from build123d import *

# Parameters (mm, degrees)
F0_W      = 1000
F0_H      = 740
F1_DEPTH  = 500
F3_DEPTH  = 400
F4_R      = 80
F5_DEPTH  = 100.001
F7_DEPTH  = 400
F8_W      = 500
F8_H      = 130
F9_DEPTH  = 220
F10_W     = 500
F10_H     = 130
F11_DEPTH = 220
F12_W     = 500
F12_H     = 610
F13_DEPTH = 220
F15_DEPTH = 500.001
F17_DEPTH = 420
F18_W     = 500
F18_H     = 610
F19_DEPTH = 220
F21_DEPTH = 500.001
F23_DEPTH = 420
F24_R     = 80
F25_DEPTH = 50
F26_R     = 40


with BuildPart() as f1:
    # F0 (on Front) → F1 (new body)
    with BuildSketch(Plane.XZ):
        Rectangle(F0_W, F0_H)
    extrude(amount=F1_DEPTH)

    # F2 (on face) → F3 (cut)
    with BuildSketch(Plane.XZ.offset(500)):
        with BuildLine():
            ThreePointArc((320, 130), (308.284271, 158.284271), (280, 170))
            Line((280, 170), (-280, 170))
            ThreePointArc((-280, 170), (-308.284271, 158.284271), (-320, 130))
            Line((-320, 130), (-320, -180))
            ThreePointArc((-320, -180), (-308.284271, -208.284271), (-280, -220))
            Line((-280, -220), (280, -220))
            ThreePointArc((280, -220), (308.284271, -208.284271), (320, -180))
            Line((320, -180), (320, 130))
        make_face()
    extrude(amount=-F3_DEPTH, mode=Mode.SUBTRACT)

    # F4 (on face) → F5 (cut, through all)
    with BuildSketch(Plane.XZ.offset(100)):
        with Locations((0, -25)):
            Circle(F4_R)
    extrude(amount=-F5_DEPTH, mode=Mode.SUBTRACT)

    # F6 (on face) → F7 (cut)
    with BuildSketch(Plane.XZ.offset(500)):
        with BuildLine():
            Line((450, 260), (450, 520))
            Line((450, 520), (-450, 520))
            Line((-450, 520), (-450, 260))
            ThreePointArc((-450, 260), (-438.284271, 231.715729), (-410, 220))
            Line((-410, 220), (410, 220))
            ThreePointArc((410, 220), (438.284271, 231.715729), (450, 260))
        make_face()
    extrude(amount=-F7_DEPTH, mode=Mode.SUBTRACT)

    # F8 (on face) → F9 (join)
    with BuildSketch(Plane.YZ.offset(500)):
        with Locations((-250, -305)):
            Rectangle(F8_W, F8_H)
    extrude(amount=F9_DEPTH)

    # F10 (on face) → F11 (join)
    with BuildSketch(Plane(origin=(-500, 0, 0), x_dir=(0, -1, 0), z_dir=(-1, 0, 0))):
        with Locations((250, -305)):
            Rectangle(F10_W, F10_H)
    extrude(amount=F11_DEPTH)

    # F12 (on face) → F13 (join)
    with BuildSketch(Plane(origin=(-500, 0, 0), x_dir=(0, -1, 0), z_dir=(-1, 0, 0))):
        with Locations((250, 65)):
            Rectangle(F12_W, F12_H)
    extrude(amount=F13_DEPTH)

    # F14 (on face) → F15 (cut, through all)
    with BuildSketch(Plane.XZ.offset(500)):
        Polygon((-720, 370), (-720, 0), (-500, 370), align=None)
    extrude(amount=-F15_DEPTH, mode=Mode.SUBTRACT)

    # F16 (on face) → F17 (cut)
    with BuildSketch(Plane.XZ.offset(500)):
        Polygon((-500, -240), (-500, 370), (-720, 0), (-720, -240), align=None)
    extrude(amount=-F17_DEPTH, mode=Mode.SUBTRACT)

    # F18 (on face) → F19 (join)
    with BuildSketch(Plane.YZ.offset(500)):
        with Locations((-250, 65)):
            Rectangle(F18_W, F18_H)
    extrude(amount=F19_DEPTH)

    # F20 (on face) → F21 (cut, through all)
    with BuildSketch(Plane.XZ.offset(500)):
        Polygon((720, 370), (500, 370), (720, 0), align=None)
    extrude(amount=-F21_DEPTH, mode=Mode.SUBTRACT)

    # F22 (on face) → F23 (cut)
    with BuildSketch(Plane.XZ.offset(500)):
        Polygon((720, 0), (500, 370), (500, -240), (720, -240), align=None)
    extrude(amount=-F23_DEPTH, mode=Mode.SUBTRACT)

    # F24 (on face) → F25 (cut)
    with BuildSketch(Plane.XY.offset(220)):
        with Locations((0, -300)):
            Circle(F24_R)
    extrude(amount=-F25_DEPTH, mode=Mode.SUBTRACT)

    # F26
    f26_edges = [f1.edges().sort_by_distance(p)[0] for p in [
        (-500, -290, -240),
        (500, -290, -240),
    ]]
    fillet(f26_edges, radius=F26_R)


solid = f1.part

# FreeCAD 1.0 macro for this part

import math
import FreeCAD as App
import Part
import Sketcher


def edges_at(feature, points):
    """Names of the edges that pass closest to the given points."""
    edges = feature.Shape.Edges
    near = lambda p: min(range(len(edges)), key=lambda i: edges[i].distToShape(Part.Vertex(*p))[0])
    return sorted({f"Edge{near(p) + 1}" for p in points})

doc = App.newDocument("Part")
body = doc.addObject("PartDesign::Body", "Body")

# Sketch on XZ plane
sketch1 = doc.addObject("Sketcher::SketchObject", "Sketch")
body.addObject(sketch1)
sketch1.AttachmentSupport = (doc.XZ_Plane, [""])
sketch1.MapMode = "FlatFace"
sketch1.addGeometry(Part.LineSegment(App.Vector(-500, 370, 0), App.Vector(-500, -370, 0)), False)
sketch1.addGeometry(Part.LineSegment(App.Vector(-500, -370, 0), App.Vector(500, -370, 0)), False)
sketch1.addGeometry(Part.LineSegment(App.Vector(500, -370, 0), App.Vector(500, 370, 0)), False)
sketch1.addGeometry(Part.LineSegment(App.Vector(500, 370, 0), App.Vector(-500, 370, 0)), False)
sketch1.addConstraint(Sketcher.Constraint("Coincident", 0, 2, 1, 1))
sketch1.addConstraint(Sketcher.Constraint("Coincident", 1, 2, 2, 1))
sketch1.addConstraint(Sketcher.Constraint("Coincident", 2, 2, 3, 1))
sketch1.addConstraint(Sketcher.Constraint("Coincident", 3, 2, 0, 1))
sketch1.addConstraint(Sketcher.Constraint("Vertical", 0))
sketch1.addConstraint(Sketcher.Constraint("Horizontal", 1))
sketch1.addConstraint(Sketcher.Constraint("Vertical", 2))
sketch1.addConstraint(Sketcher.Constraint("Horizontal", 3))
sketch1.addConstraint(Sketcher.Constraint("Symmetric", 0, 2, 2, 2, -1, 1))
sketch1.addConstraint(Sketcher.Constraint("DistanceX", 1, 1, 1, 2, 1000.0))
sketch1.addConstraint(Sketcher.Constraint("DistanceY", 0, 2, 0, 1, 740.0))
pad1 = doc.addObject("PartDesign::Pad", "Pad")
body.addObject(pad1)
pad1.Profile = sketch1
pad1.Length = 500

# Sketch on XZ plane
sketch2 = doc.addObject("Sketcher::SketchObject", "Sketch001")
body.addObject(sketch2)
sketch2.AttachmentSupport = (doc.XZ_Plane, [""])
sketch2.MapMode = "FlatFace"
sketch2.AttachmentOffset = App.Placement(App.Vector(0, 0, 500), App.Rotation())
sketch2.addGeometry(Part.ArcOfCircle(Part.Circle(App.Vector(279.999999, 129.999999, 0), App.Vector(0, 0, 1), 40.000001), math.radians(0.000001), math.radians(89.999999)), False)
sketch2.addGeometry(Part.LineSegment(App.Vector(280, 170, 0), App.Vector(-280, 170, 0)), False)
sketch2.addGeometry(Part.ArcOfCircle(Part.Circle(App.Vector(-279.999999, 129.999999, 0), App.Vector(0, 0, 1), 40.000001), math.radians(90.000001), math.radians(179.999999)), False)
sketch2.addGeometry(Part.LineSegment(App.Vector(-320, 130, 0), App.Vector(-320, -180, 0)), False)
sketch2.addGeometry(Part.ArcOfCircle(Part.Circle(App.Vector(-279.999999, -179.999999, 0), App.Vector(0, 0, 1), 40.000001), math.radians(-179.999999), math.radians(-90.000001)), False)
sketch2.addGeometry(Part.LineSegment(App.Vector(-280, -220, 0), App.Vector(280, -220, 0)), False)
sketch2.addGeometry(Part.ArcOfCircle(Part.Circle(App.Vector(279.999999, -179.999999, 0), App.Vector(0, 0, 1), 40.000001), math.radians(-89.999999), math.radians(-0.000001)), False)
sketch2.addGeometry(Part.LineSegment(App.Vector(320, -180, 0), App.Vector(320, 130, 0)), False)
sketch2.addConstraint(Sketcher.Constraint("Tangent", 0, 2, 1, 1))
sketch2.addConstraint(Sketcher.Constraint("Tangent", 1, 2, 2, 1))
sketch2.addConstraint(Sketcher.Constraint("Tangent", 2, 2, 3, 1))
sketch2.addConstraint(Sketcher.Constraint("Tangent", 3, 2, 4, 1))
sketch2.addConstraint(Sketcher.Constraint("Tangent", 4, 2, 5, 1))
sketch2.addConstraint(Sketcher.Constraint("Tangent", 5, 2, 6, 1))
sketch2.addConstraint(Sketcher.Constraint("Tangent", 6, 2, 7, 1))
sketch2.addConstraint(Sketcher.Constraint("Tangent", 7, 2, 0, 1))
sketch2.addConstraint(Sketcher.Constraint("Horizontal", 1))
sketch2.addConstraint(Sketcher.Constraint("Vertical", 3))
sketch2.addConstraint(Sketcher.Constraint("Horizontal", 5))
sketch2.addConstraint(Sketcher.Constraint("Vertical", 7))
sketch2.addConstraint(Sketcher.Constraint("Equal", 0, 2))
sketch2.addConstraint(Sketcher.Constraint("Equal", 2, 4))
sketch2.addConstraint(Sketcher.Constraint("Equal", 4, 6))
sketch2.addConstraint(Sketcher.Constraint("Radius", 0, 40.000001))
sketch2.addConstraint(Sketcher.Constraint("DistanceX", 1, 2, 1, 1, 560.0))
sketch2.addConstraint(Sketcher.Constraint("DistanceY", 3, 2, 3, 1, 310.0))
sketch2.addConstraint(Sketcher.Constraint("DistanceX", -1, 1, 0, 3, 279.999999))
sketch2.addConstraint(Sketcher.Constraint("DistanceY", -1, 1, 0, 3, 129.999999))
pocket1 = doc.addObject("PartDesign::Pocket", "Pocket")
body.addObject(pocket1)
pocket1.Profile = sketch2
pocket1.Length = 400

# Sketch on XZ plane
sketch3 = doc.addObject("Sketcher::SketchObject", "Sketch002")
body.addObject(sketch3)
sketch3.AttachmentSupport = (doc.XZ_Plane, [""])
sketch3.MapMode = "FlatFace"
sketch3.AttachmentOffset = App.Placement(App.Vector(0, 0, 100), App.Rotation())
sketch3.addGeometry(Part.Circle(App.Vector(0, -25, 0), App.Vector(0, 0, 1), 80), False)
sketch3.addConstraint(Sketcher.Constraint("PointOnObject", 0, 3, -2))
sketch3.addConstraint(Sketcher.Constraint("Diameter", 0, 160.0))
sketch3.addConstraint(Sketcher.Constraint("DistanceY", 0, 3, -1, 1, 25.0))
pocket2 = doc.addObject("PartDesign::Pocket", "Pocket001")
body.addObject(pocket2)
pocket2.Profile = sketch3
pocket2.Type = "ThroughAll"

# Sketch on XZ plane
sketch4 = doc.addObject("Sketcher::SketchObject", "Sketch003")
body.addObject(sketch4)
sketch4.AttachmentSupport = (doc.XZ_Plane, [""])
sketch4.MapMode = "FlatFace"
sketch4.AttachmentOffset = App.Placement(App.Vector(0, 0, 500), App.Rotation())
sketch4.addGeometry(Part.LineSegment(App.Vector(450, 260, 0), App.Vector(450, 520, 0)), False)
sketch4.addGeometry(Part.LineSegment(App.Vector(450, 520, 0), App.Vector(-450, 520, 0)), False)
sketch4.addGeometry(Part.LineSegment(App.Vector(-450, 520, 0), App.Vector(-450, 260, 0)), False)
sketch4.addGeometry(Part.ArcOfCircle(Part.Circle(App.Vector(-409.999999, 260.000001, 0), App.Vector(0, 0, 1), 40.000001), math.radians(-179.999999), math.radians(-90.000001)), False)
sketch4.addGeometry(Part.LineSegment(App.Vector(-410, 220, 0), App.Vector(410, 220, 0)), False)
sketch4.addGeometry(Part.ArcOfCircle(Part.Circle(App.Vector(409.999999, 260.000001, 0), App.Vector(0, 0, 1), 40.000001), math.radians(-89.999999), math.radians(-0.000001)), False)
sketch4.addConstraint(Sketcher.Constraint("Coincident", 0, 2, 1, 1))
sketch4.addConstraint(Sketcher.Constraint("Coincident", 1, 2, 2, 1))
sketch4.addConstraint(Sketcher.Constraint("Tangent", 2, 2, 3, 1))
sketch4.addConstraint(Sketcher.Constraint("Tangent", 3, 2, 4, 1))
sketch4.addConstraint(Sketcher.Constraint("Tangent", 4, 2, 5, 1))
sketch4.addConstraint(Sketcher.Constraint("Tangent", 5, 2, 0, 1))
sketch4.addConstraint(Sketcher.Constraint("Vertical", 0))
sketch4.addConstraint(Sketcher.Constraint("Horizontal", 1))
sketch4.addConstraint(Sketcher.Constraint("Vertical", 2))
sketch4.addConstraint(Sketcher.Constraint("Horizontal", 4))
sketch4.addConstraint(Sketcher.Constraint("Equal", 3, 5))
sketch4.addConstraint(Sketcher.Constraint("Radius", 3, 40.000001))
sketch4.addConstraint(Sketcher.Constraint("DistanceX", 1, 2, 1, 1, 900.0))
sketch4.addConstraint(Sketcher.Constraint("DistanceY", 0, 1, 0, 2, 260.0))
sketch4.addConstraint(Sketcher.Constraint("DistanceX", 3, 3, -1, 1, 409.999999))
sketch4.addConstraint(Sketcher.Constraint("DistanceY", -1, 1, 3, 3, 260.000001))
pocket3 = doc.addObject("PartDesign::Pocket", "Pocket002")
body.addObject(pocket3)
pocket3.Profile = sketch4
pocket3.Length = 400

# Sketch on YZ plane
sketch5 = doc.addObject("Sketcher::SketchObject", "Sketch004")
body.addObject(sketch5)
sketch5.AttachmentSupport = (doc.YZ_Plane, [""])
sketch5.MapMode = "FlatFace"
sketch5.AttachmentOffset = App.Placement(App.Vector(0, 0, 500), App.Rotation())
sketch5.addGeometry(Part.LineSegment(App.Vector(-500, -240, 0), App.Vector(-500, -370, 0)), False)
sketch5.addGeometry(Part.LineSegment(App.Vector(-500, -370, 0), App.Vector(0, -370, 0)), False)
sketch5.addGeometry(Part.LineSegment(App.Vector(0, -370, 0), App.Vector(0, -240, 0)), False)
sketch5.addGeometry(Part.LineSegment(App.Vector(0, -240, 0), App.Vector(-500, -240, 0)), False)
sketch5.addConstraint(Sketcher.Constraint("Coincident", 0, 2, 1, 1))
sketch5.addConstraint(Sketcher.Constraint("Coincident", 1, 2, 2, 1))
sketch5.addConstraint(Sketcher.Constraint("Coincident", 2, 2, 3, 1))
sketch5.addConstraint(Sketcher.Constraint("Coincident", 3, 2, 0, 1))
sketch5.addConstraint(Sketcher.Constraint("Vertical", 0))
sketch5.addConstraint(Sketcher.Constraint("Horizontal", 1))
sketch5.addConstraint(Sketcher.Constraint("Vertical", 2))
sketch5.addConstraint(Sketcher.Constraint("Horizontal", 3))
sketch5.addConstraint(Sketcher.Constraint("PointOnObject", 1, 2, -2))
sketch5.addConstraint(Sketcher.Constraint("DistanceX", 1, 1, 1, 2, 500.0))
sketch5.addConstraint(Sketcher.Constraint("DistanceY", 0, 2, 0, 1, 130.0))
sketch5.addConstraint(Sketcher.Constraint("DistanceY", 0, 2, -1, 1, 370.0))
pad2 = doc.addObject("PartDesign::Pad", "Pad001")
body.addObject(pad2)
pad2.Profile = sketch5
pad2.Length = 220

# Sketch on YZ plane
sketch6 = doc.addObject("Sketcher::SketchObject", "Sketch005")
body.addObject(sketch6)
sketch6.AttachmentSupport = (doc.YZ_Plane, [""])
sketch6.MapMode = "FlatFace"
sketch6.AttachmentOffset = App.Placement(App.Vector(0, 0, -500), App.Rotation())
sketch6.addGeometry(Part.LineSegment(App.Vector(0, -240, 0), App.Vector(0, -370, 0)), False)
sketch6.addGeometry(Part.LineSegment(App.Vector(0, -370, 0), App.Vector(-500, -370, 0)), False)
sketch6.addGeometry(Part.LineSegment(App.Vector(-500, -370, 0), App.Vector(-500, -240, 0)), False)
sketch6.addGeometry(Part.LineSegment(App.Vector(-500, -240, 0), App.Vector(0, -240, 0)), False)
sketch6.addConstraint(Sketcher.Constraint("Coincident", 0, 2, 1, 1))
sketch6.addConstraint(Sketcher.Constraint("Coincident", 1, 2, 2, 1))
sketch6.addConstraint(Sketcher.Constraint("Coincident", 2, 2, 3, 1))
sketch6.addConstraint(Sketcher.Constraint("Coincident", 3, 2, 0, 1))
sketch6.addConstraint(Sketcher.Constraint("Vertical", 0))
sketch6.addConstraint(Sketcher.Constraint("Horizontal", 1))
sketch6.addConstraint(Sketcher.Constraint("Vertical", 2))
sketch6.addConstraint(Sketcher.Constraint("Horizontal", 3))
sketch6.addConstraint(Sketcher.Constraint("PointOnObject", 0, 2, -2))
sketch6.addConstraint(Sketcher.Constraint("DistanceX", 1, 2, 1, 1, 500.0))
sketch6.addConstraint(Sketcher.Constraint("DistanceY", 0, 2, 0, 1, 130.0))
sketch6.addConstraint(Sketcher.Constraint("DistanceY", 0, 2, -1, 1, 370.0))
pad3 = doc.addObject("PartDesign::Pad", "Pad002")
body.addObject(pad3)
pad3.Profile = sketch6
pad3.Length = 220
pad3.Reversed = True

# Sketch on YZ plane
sketch7 = doc.addObject("Sketcher::SketchObject", "Sketch006")
body.addObject(sketch7)
sketch7.AttachmentSupport = (doc.YZ_Plane, [""])
sketch7.MapMode = "FlatFace"
sketch7.AttachmentOffset = App.Placement(App.Vector(0, 0, -500), App.Rotation())
sketch7.addGeometry(Part.LineSegment(App.Vector(0, 370, 0), App.Vector(0, -240, 0)), False)
sketch7.addGeometry(Part.LineSegment(App.Vector(0, -240, 0), App.Vector(-500, -240, 0)), False)
sketch7.addGeometry(Part.LineSegment(App.Vector(-500, -240, 0), App.Vector(-500, 370, 0)), False)
sketch7.addGeometry(Part.LineSegment(App.Vector(-500, 370, 0), App.Vector(0, 370, 0)), False)
sketch7.addConstraint(Sketcher.Constraint("Coincident", 0, 2, 1, 1))
sketch7.addConstraint(Sketcher.Constraint("Coincident", 1, 2, 2, 1))
sketch7.addConstraint(Sketcher.Constraint("Coincident", 2, 2, 3, 1))
sketch7.addConstraint(Sketcher.Constraint("Coincident", 3, 2, 0, 1))
sketch7.addConstraint(Sketcher.Constraint("Vertical", 0))
sketch7.addConstraint(Sketcher.Constraint("Horizontal", 1))
sketch7.addConstraint(Sketcher.Constraint("Vertical", 2))
sketch7.addConstraint(Sketcher.Constraint("Horizontal", 3))
sketch7.addConstraint(Sketcher.Constraint("PointOnObject", 0, 2, -2))
sketch7.addConstraint(Sketcher.Constraint("DistanceX", 1, 2, 1, 1, 500.0))
sketch7.addConstraint(Sketcher.Constraint("DistanceY", 0, 2, 0, 1, 610.0))
sketch7.addConstraint(Sketcher.Constraint("DistanceY", 0, 2, -1, 1, 240.0))
pad4 = doc.addObject("PartDesign::Pad", "Pad003")
body.addObject(pad4)
pad4.Profile = sketch7
pad4.Length = 220
pad4.Reversed = True

# Sketch on XZ plane
sketch8 = doc.addObject("Sketcher::SketchObject", "Sketch007")
body.addObject(sketch8)
sketch8.AttachmentSupport = (doc.XZ_Plane, [""])
sketch8.MapMode = "FlatFace"
sketch8.AttachmentOffset = App.Placement(App.Vector(0, 0, 500), App.Rotation())
sketch8.addGeometry(Part.LineSegment(App.Vector(-720, 370, 0), App.Vector(-720, 0, 0)), False)
sketch8.addGeometry(Part.LineSegment(App.Vector(-720, 0, 0), App.Vector(-500, 370, 0)), False)
sketch8.addGeometry(Part.LineSegment(App.Vector(-500, 370, 0), App.Vector(-720, 370, 0)), False)
sketch8.addConstraint(Sketcher.Constraint("Coincident", 0, 2, 1, 1))
sketch8.addConstraint(Sketcher.Constraint("Coincident", 1, 2, 2, 1))
sketch8.addConstraint(Sketcher.Constraint("Coincident", 2, 2, 0, 1))
sketch8.addConstraint(Sketcher.Constraint("Vertical", 0))
sketch8.addConstraint(Sketcher.Constraint("Horizontal", 2))
sketch8.addConstraint(Sketcher.Constraint("PointOnObject", 0, 2, -1))
sketch8.addConstraint(Sketcher.Constraint("DistanceX", 2, 2, 2, 1, 220.0))
sketch8.addConstraint(Sketcher.Constraint("DistanceY", 0, 2, 0, 1, 370.0))
sketch8.addConstraint(Sketcher.Constraint("DistanceX", 0, 2, -1, 1, 720.0))
pocket4 = doc.addObject("PartDesign::Pocket", "Pocket003")
body.addObject(pocket4)
pocket4.Profile = sketch8
pocket4.Type = "ThroughAll"

# Sketch on XZ plane
sketch9 = doc.addObject("Sketcher::SketchObject", "Sketch008")
body.addObject(sketch9)
sketch9.AttachmentSupport = (doc.XZ_Plane, [""])
sketch9.MapMode = "FlatFace"
sketch9.AttachmentOffset = App.Placement(App.Vector(0, 0, 500), App.Rotation())
sketch9.addGeometry(Part.LineSegment(App.Vector(-500, -240, 0), App.Vector(-500, 370, 0)), False)
sketch9.addGeometry(Part.LineSegment(App.Vector(-500, 370, 0), App.Vector(-720, 0, 0)), False)
sketch9.addGeometry(Part.LineSegment(App.Vector(-720, 0, 0), App.Vector(-720, -240, 0)), False)
sketch9.addGeometry(Part.LineSegment(App.Vector(-720, -240, 0), App.Vector(-500, -240, 0)), False)
sketch9.addConstraint(Sketcher.Constraint("Coincident", 0, 2, 1, 1))
sketch9.addConstraint(Sketcher.Constraint("Coincident", 1, 2, 2, 1))
sketch9.addConstraint(Sketcher.Constraint("Coincident", 2, 2, 3, 1))
sketch9.addConstraint(Sketcher.Constraint("Coincident", 3, 2, 0, 1))
sketch9.addConstraint(Sketcher.Constraint("Vertical", 0))
sketch9.addConstraint(Sketcher.Constraint("Vertical", 2))
sketch9.addConstraint(Sketcher.Constraint("Horizontal", 3))
sketch9.addConstraint(Sketcher.Constraint("PointOnObject", 1, 2, -1))
sketch9.addConstraint(Sketcher.Constraint("DistanceX", 3, 1, 3, 2, 220.0))
sketch9.addConstraint(Sketcher.Constraint("DistanceY", 0, 1, 0, 2, 610.0))
sketch9.addConstraint(Sketcher.Constraint("DistanceY", 2, 2, 2, 1, 240.0))
sketch9.addConstraint(Sketcher.Constraint("DistanceX", 0, 2, -1, 1, 500.0))
pocket5 = doc.addObject("PartDesign::Pocket", "Pocket004")
body.addObject(pocket5)
pocket5.Profile = sketch9
pocket5.Length = 420

# Sketch on YZ plane
sketch10 = doc.addObject("Sketcher::SketchObject", "Sketch009")
body.addObject(sketch10)
sketch10.AttachmentSupport = (doc.YZ_Plane, [""])
sketch10.MapMode = "FlatFace"
sketch10.AttachmentOffset = App.Placement(App.Vector(0, 0, 500), App.Rotation())
sketch10.addGeometry(Part.LineSegment(App.Vector(-500, 370, 0), App.Vector(-500, -240, 0)), False)
sketch10.addGeometry(Part.LineSegment(App.Vector(-500, -240, 0), App.Vector(0, -240, 0)), False)
sketch10.addGeometry(Part.LineSegment(App.Vector(0, -240, 0), App.Vector(0, 370, 0)), False)
sketch10.addGeometry(Part.LineSegment(App.Vector(0, 370, 0), App.Vector(-500, 370, 0)), False)
sketch10.addConstraint(Sketcher.Constraint("Coincident", 0, 2, 1, 1))
sketch10.addConstraint(Sketcher.Constraint("Coincident", 1, 2, 2, 1))
sketch10.addConstraint(Sketcher.Constraint("Coincident", 2, 2, 3, 1))
sketch10.addConstraint(Sketcher.Constraint("Coincident", 3, 2, 0, 1))
sketch10.addConstraint(Sketcher.Constraint("Vertical", 0))
sketch10.addConstraint(Sketcher.Constraint("Horizontal", 1))
sketch10.addConstraint(Sketcher.Constraint("Vertical", 2))
sketch10.addConstraint(Sketcher.Constraint("Horizontal", 3))
sketch10.addConstraint(Sketcher.Constraint("PointOnObject", 1, 2, -2))
sketch10.addConstraint(Sketcher.Constraint("DistanceX", 1, 1, 1, 2, 500.0))
sketch10.addConstraint(Sketcher.Constraint("DistanceY", 0, 2, 0, 1, 610.0))
sketch10.addConstraint(Sketcher.Constraint("DistanceY", 0, 2, -1, 1, 240.0))
pad5 = doc.addObject("PartDesign::Pad", "Pad004")
body.addObject(pad5)
pad5.Profile = sketch10
pad5.Length = 220

# Sketch on XZ plane
sketch11 = doc.addObject("Sketcher::SketchObject", "Sketch010")
body.addObject(sketch11)
sketch11.AttachmentSupport = (doc.XZ_Plane, [""])
sketch11.MapMode = "FlatFace"
sketch11.AttachmentOffset = App.Placement(App.Vector(0, 0, 500), App.Rotation())
sketch11.addGeometry(Part.LineSegment(App.Vector(720, 370, 0), App.Vector(500, 370, 0)), False)
sketch11.addGeometry(Part.LineSegment(App.Vector(500, 370, 0), App.Vector(720, 0, 0)), False)
sketch11.addGeometry(Part.LineSegment(App.Vector(720, 0, 0), App.Vector(720, 370, 0)), False)
sketch11.addConstraint(Sketcher.Constraint("Coincident", 0, 2, 1, 1))
sketch11.addConstraint(Sketcher.Constraint("Coincident", 1, 2, 2, 1))
sketch11.addConstraint(Sketcher.Constraint("Coincident", 2, 2, 0, 1))
sketch11.addConstraint(Sketcher.Constraint("Horizontal", 0))
sketch11.addConstraint(Sketcher.Constraint("Vertical", 2))
sketch11.addConstraint(Sketcher.Constraint("PointOnObject", 1, 2, -1))
sketch11.addConstraint(Sketcher.Constraint("DistanceX", 0, 2, 0, 1, 220.0))
sketch11.addConstraint(Sketcher.Constraint("DistanceY", 2, 1, 2, 2, 370.0))
sketch11.addConstraint(Sketcher.Constraint("DistanceX", -1, 1, 0, 2, 500.0))
pocket6 = doc.addObject("PartDesign::Pocket", "Pocket005")
body.addObject(pocket6)
pocket6.Profile = sketch11
pocket6.Type = "ThroughAll"

# Sketch on XZ plane
sketch12 = doc.addObject("Sketcher::SketchObject", "Sketch011")
body.addObject(sketch12)
sketch12.AttachmentSupport = (doc.XZ_Plane, [""])
sketch12.MapMode = "FlatFace"
sketch12.AttachmentOffset = App.Placement(App.Vector(0, 0, 500), App.Rotation())
sketch12.addGeometry(Part.LineSegment(App.Vector(720, 0, 0), App.Vector(500, 370, 0)), False)
sketch12.addGeometry(Part.LineSegment(App.Vector(500, 370, 0), App.Vector(500, -240, 0)), False)
sketch12.addGeometry(Part.LineSegment(App.Vector(500, -240, 0), App.Vector(720, -240, 0)), False)
sketch12.addGeometry(Part.LineSegment(App.Vector(720, -240, 0), App.Vector(720, 0, 0)), False)
sketch12.addConstraint(Sketcher.Constraint("Coincident", 0, 2, 1, 1))
sketch12.addConstraint(Sketcher.Constraint("Coincident", 1, 2, 2, 1))
sketch12.addConstraint(Sketcher.Constraint("Coincident", 2, 2, 3, 1))
sketch12.addConstraint(Sketcher.Constraint("Coincident", 3, 2, 0, 1))
sketch12.addConstraint(Sketcher.Constraint("Vertical", 1))
sketch12.addConstraint(Sketcher.Constraint("Horizontal", 2))
sketch12.addConstraint(Sketcher.Constraint("Vertical", 3))
sketch12.addConstraint(Sketcher.Constraint("PointOnObject", 3, 2, -1))
sketch12.addConstraint(Sketcher.Constraint("DistanceX", 2, 1, 2, 2, 220.0))
sketch12.addConstraint(Sketcher.Constraint("DistanceY", 1, 2, 1, 1, 610.0))
sketch12.addConstraint(Sketcher.Constraint("DistanceY", 3, 1, 3, 2, 240.0))
sketch12.addConstraint(Sketcher.Constraint("DistanceX", -1, 1, 0, 2, 500.0))
pocket7 = doc.addObject("PartDesign::Pocket", "Pocket006")
body.addObject(pocket7)
pocket7.Profile = sketch12
pocket7.Length = 420

# Sketch on XY plane
sketch13 = doc.addObject("Sketcher::SketchObject", "Sketch012")
body.addObject(sketch13)
sketch13.AttachmentSupport = (doc.XY_Plane, [""])
sketch13.MapMode = "FlatFace"
sketch13.AttachmentOffset = App.Placement(App.Vector(0, 0, 220), App.Rotation())
sketch13.addGeometry(Part.Circle(App.Vector(0, -300, 0), App.Vector(0, 0, 1), 80), False)
sketch13.addConstraint(Sketcher.Constraint("PointOnObject", 0, 3, -2))
sketch13.addConstraint(Sketcher.Constraint("Diameter", 0, 160.0))
sketch13.addConstraint(Sketcher.Constraint("DistanceY", 0, 3, -1, 1, 300.0))
pocket8 = doc.addObject("PartDesign::Pocket", "Pocket007")
body.addObject(pocket8)
pocket8.Profile = sketch13
pocket8.Length = 50
doc.recompute()

fillet = doc.addObject("PartDesign::Fillet", "Fillet")
body.addObject(fillet)
fillet.Base = (pocket8, edges_at(pocket8, [(-500, -290, -240), (500, -290, -240)]))
fillet.Radius = 40

doc.recompute()
